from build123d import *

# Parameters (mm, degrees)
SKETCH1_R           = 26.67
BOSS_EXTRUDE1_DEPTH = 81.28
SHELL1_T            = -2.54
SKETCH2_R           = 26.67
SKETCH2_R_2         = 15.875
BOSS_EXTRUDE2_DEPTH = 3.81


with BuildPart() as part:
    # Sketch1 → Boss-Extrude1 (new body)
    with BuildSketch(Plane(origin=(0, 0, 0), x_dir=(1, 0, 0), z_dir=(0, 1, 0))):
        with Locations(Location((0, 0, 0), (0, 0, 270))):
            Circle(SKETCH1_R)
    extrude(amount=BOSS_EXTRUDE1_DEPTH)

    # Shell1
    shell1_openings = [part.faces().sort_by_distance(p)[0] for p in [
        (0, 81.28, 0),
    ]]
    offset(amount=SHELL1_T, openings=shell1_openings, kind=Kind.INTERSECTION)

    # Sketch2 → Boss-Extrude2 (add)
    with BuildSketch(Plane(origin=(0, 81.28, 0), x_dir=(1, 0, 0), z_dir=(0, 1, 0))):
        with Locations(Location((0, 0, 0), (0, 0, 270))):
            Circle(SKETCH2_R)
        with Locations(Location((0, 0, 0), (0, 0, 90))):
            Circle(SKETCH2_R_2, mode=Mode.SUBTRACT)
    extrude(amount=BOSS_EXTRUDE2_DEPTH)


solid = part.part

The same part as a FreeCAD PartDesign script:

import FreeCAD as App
import Part
import Sketcher

V = App.Vector
Q = App.Units.Quantity


def faces_at(feature, points):
    """Names of the faces that lie closest to the given points."""
    faces = feature.Shape.Faces
    near = lambda p: min(range(len(faces)), key=lambda i: faces[i].distToShape(Part.Vertex(*p))[0])
    return sorted({f"Face{near(p) + 1}" for p in points})

doc = App.newDocument("Part")
body = doc.addObject("PartDesign::Body", "Body")

# Sketch on XZ plane
sketch1 = body.newObject("Sketcher::SketchObject", "Sketch")
sketch1.AttachmentSupport = (doc.getObject("XZ_Plane"), [""])
sketch1.MapMode = "FlatFace"
sketch1.addGeometry(Part.Circle(V(0, 0, 0), V(0, 0, 1), 27), False)
sketch1.addConstraint(Sketcher.Constraint("Coincident", 0, 3, -1, 1))
sketch1.addConstraint(Sketcher.Constraint("Diameter", 0, Q("2.1 in")))
pad1 = body.newObject("PartDesign::Pad", "Pad")
pad1.Profile = sketch1
pad1.Length = Q("3.2 in")
pad1.Reversed = True
doc.recompute()

thickness = body.newObject("PartDesign::Thickness", "Thickness")
thickness.Base = (pad1, faces_at(pad1, [(0, 81.28, 0)]))
thickness.Value = Q("0.1 in")
thickness.Reversed = True
thickness.Join = "Intersection"

# Sketch on XZ plane
sketch2 = body.newObject("Sketcher::SketchObject", "Sketch001")
sketch2.AttachmentSupport = (doc.getObject("XZ_Plane"), [""])
sketch2.MapMode = "FlatFace"
sketch2.AttachmentOffset = App.Placement(V(0, 0, -3.2 * 25.4), App.Rotation())
sketch2.addGeometry(Part.Circle(V(0, 0, 0), V(0, 0, 1), 27), False)
sketch2.addGeometry(Part.Circle(V(0, 0, 0), V(0, 0, 1), 16), False)
sketch2.addConstraint(Sketcher.Constraint("Coincident", 0, 3, -1, 1))
sketch2.addConstraint(Sketcher.Constraint("Coincident", 1, 3, -1, 1))
sketch2.addConstraint(Sketcher.Constraint("Diameter", 0, Q("2.1 in")))
sketch2.addConstraint(Sketcher.Constraint("Diameter", 1, Q("1.25 in")))
pad2 = body.newObject("PartDesign::Pad", "Pad001")
pad2.Profile = sketch2
pad2.Length = Q("0.15 in")
pad2.Reversed = True

doc.recompute()
